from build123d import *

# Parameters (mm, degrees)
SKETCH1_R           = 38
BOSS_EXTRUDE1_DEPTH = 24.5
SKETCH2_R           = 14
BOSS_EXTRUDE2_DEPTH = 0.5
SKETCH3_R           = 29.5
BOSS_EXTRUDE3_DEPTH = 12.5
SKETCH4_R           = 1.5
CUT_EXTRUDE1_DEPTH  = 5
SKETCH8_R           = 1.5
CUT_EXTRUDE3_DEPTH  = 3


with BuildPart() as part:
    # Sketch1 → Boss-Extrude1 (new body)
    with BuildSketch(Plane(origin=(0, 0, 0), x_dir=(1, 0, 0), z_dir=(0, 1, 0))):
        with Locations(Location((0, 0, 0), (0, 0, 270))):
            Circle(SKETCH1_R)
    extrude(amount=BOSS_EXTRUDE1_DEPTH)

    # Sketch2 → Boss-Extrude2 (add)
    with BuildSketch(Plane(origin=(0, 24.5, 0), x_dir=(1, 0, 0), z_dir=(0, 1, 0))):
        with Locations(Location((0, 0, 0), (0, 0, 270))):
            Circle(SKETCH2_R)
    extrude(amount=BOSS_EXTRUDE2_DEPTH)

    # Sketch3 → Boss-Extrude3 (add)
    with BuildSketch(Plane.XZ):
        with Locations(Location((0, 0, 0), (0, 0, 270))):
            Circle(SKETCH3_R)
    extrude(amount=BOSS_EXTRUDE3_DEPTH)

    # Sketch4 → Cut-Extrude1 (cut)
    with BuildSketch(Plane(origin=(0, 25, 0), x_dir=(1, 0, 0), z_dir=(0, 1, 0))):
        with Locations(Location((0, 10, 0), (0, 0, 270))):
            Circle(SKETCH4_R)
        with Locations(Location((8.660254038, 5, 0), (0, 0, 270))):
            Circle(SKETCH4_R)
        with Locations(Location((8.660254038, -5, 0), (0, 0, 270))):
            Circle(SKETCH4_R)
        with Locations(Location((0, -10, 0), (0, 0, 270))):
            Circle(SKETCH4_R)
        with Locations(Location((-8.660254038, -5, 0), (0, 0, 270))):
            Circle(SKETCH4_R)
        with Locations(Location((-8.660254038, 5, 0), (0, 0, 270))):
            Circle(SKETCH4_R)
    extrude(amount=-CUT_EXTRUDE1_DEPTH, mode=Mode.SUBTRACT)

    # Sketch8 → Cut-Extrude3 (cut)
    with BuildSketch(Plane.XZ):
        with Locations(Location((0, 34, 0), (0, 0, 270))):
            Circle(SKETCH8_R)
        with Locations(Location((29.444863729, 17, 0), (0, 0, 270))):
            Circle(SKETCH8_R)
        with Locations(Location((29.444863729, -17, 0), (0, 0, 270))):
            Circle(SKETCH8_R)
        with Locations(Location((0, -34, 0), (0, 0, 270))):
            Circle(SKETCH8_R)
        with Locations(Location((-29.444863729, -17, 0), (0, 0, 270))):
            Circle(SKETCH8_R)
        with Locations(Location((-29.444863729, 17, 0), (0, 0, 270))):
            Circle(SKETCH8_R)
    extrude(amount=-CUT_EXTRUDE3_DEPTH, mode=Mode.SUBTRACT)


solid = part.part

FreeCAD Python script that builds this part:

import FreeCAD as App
import Part
import Sketcher

doc = App.newDocument("Part")
body = doc.addObject("PartDesign::Body", "Body")

sketch1 = doc.addObject("Sketcher::SketchObject", "Sketch")
body.addObject(sketch1)
sketch1.AttachmentSupport = (doc.XZ_Plane, [""])
sketch1.MapMode = "FlatFace"
sketch1.addGeometry(Part.Circle(App.Vector(0, 0, 0), App.Vector(0, 0, 1), 38), False)
sketch1.addConstraint([
    Sketcher.Constraint("Coincident", 0, 3, -1, 1),
    Sketcher.Constraint("Diameter", 0, 76.0),
])
pad1 = doc.addObject("PartDesign::Pad", "Pad")
body.addObject(pad1)
pad1.Profile = sketch1
pad1.Length = 24.5
pad1.Reversed = True

sketch2 = doc.addObject("Sketcher::SketchObject", "Sketch001")
body.addObject(sketch2)
sketch2.AttachmentSupport = (doc.XZ_Plane, [""])
sketch2.MapMode = "FlatFace"
sketch2.AttachmentOffset = App.Placement(App.Vector(0, 0, -24.5), App.Rotation())
sketch2.addGeometry(Part.Circle(App.Vector(0, 0, 0), App.Vector(0, 0, 1), 14), False)
sketch2.addConstraint([
    Sketcher.Constraint("Coincident", 0, 3, -1, 1),
    Sketcher.Constraint("Diameter", 0, 28.0),
])
pad2 = doc.addObject("PartDesign::Pad", "Pad001")
body.addObject(pad2)
pad2.Profile = sketch2
pad2.Length = 0.5
pad2.Reversed = True

sketch3 = doc.addObject("Sketcher::SketchObject", "Sketch002")
body.addObject(sketch3)
sketch3.AttachmentSupport = (doc.XZ_Plane, [""])
sketch3.MapMode = "FlatFace"
sketch3.addGeometry(Part.Circle(App.Vector(0, 0, 0), App.Vector(0, 0, 1), 29.5), False)
sketch3.addConstraint([
    Sketcher.Constraint("Coincident", 0, 3, -1, 1),
    Sketcher.Constraint("Diameter", 0, 59.0),
])
pad3 = doc.addObject("PartDesign::Pad", "Pad002")
body.addObject(pad3)
pad3.Profile = sketch3
pad3.Length = 12.5

sketch4 = doc.addObject("Sketcher::SketchObject", "Sketch003")
body.addObject(sketch4)
sketch4.AttachmentSupport = (doc.XZ_Plane, [""])
sketch4.MapMode = "FlatFace"
sketch4.AttachmentOffset = App.Placement(App.Vector(0, 0, -25), App.Rotation())
sketch4.addGeometry([
    Part.Circle(App.Vector(0, -10, 0), App.Vector(0, 0, 1), 1.5),
    Part.Circle(App.Vector(8.660254, -5, 0), App.Vector(0, 0, 1), 1.5),
    Part.Circle(App.Vector(8.660254, 5, 0), App.Vector(0, 0, 1), 1.5),
    Part.Circle(App.Vector(0, 10, 0), App.Vector(0, 0, 1), 1.5),
    Part.Circle(App.Vector(-8.660254, 5, 0), App.Vector(0, 0, 1), 1.5),
    Part.Circle(App.Vector(-8.660254, -5, 0), App.Vector(0, 0, 1), 1.5),
], False)
sketch4.addConstraint([
    Sketcher.Constraint("Equal", 0, 1),
    Sketcher.Constraint("Equal", 1, 2),
    Sketcher.Constraint("Equal", 2, 3),
    Sketcher.Constraint("Equal", 3, 4),
    Sketcher.Constraint("Equal", 4, 5),
    Sketcher.Constraint("Symmetric", 0, 3, 3, 3, -1, 1),
    Sketcher.Constraint("Symmetric", 1, 3, 4, 3, -1, 1),
    Sketcher.Constraint("Symmetric", 2, 3, 5, 3, -1, 1),
    Sketcher.Constraint("Symmetric", 2, 3, 4, 3, -2),
    Sketcher.Constraint("PointOnObject", 0, 3, -2),
    Sketcher.Constraint("Diameter", 0, 3.0),
    Sketcher.Constraint("DistanceY", 0, 3, -1, 1, 10.0),
    Sketcher.Constraint("DistanceY", 1, 3, -1, 1, 5.0),
    Sketcher.Constraint("DistanceX", 4, 3, 2, 3, 17.320508),
])
pocket1 = doc.addObject("PartDesign::Pocket", "Pocket")
body.addObject(pocket1)
pocket1.Profile = sketch4
pocket1.Length = 5
pocket1.Reversed = True

sketch5 = doc.addObject("Sketcher::SketchObject", "Sketch004")
body.addObject(sketch5)
sketch5.AttachmentSupport = (doc.XZ_Plane, [""])
sketch5.MapMode = "FlatFace"
sketch5.addGeometry([
    Part.Circle(App.Vector(0, 34, 0), App.Vector(0, 0, 1), 1.5),
    Part.Circle(App.Vector(29.444864, 17, 0), App.Vector(0, 0, 1), 1.5),
    Part.Circle(App.Vector(29.444864, -17, 0), App.Vector(0, 0, 1), 1.5),
    Part.Circle(App.Vector(0, -34, 0), App.Vector(0, 0, 1), 1.5),
    Part.Circle(App.Vector(-29.444864, -17, 0), App.Vector(0, 0, 1), 1.5),
    Part.Circle(App.Vector(-29.444864, 17, 0), App.Vector(0, 0, 1), 1.5),
], False)
sketch5.addConstraint([
    Sketcher.Constraint("Equal", 0, 1),
    Sketcher.Constraint("Equal", 1, 2),
    Sketcher.Constraint("Equal", 2, 3),
    Sketcher.Constraint("Equal", 3, 4),
    Sketcher.Constraint("Equal", 4, 5),
    Sketcher.Constraint("Symmetric", 0, 3, 3, 3, -1, 1),
    Sketcher.Constraint("Symmetric", 1, 3, 4, 3, -1, 1),
    Sketcher.Constraint("Symmetric", 2, 3, 5, 3, -1, 1),
    Sketcher.Constraint("Symmetric", 2, 3, 4, 3, -2),
    Sketcher.Constraint("PointOnObject", 0, 3, -2),
    Sketcher.Constraint("Diameter", 0, 3.0),
    Sketcher.Constraint("DistanceY", -1, 1, 0, 3, 34.0),
    Sketcher.Constraint("DistanceY", -1, 1, 1, 3, 17.0),
    Sketcher.Constraint("DistanceX", -1, 1, 1, 3, 29.444864),
])
pocket2 = doc.addObject("PartDesign::Pocket", "Pocket001")
body.addObject(pocket2)
pocket2.Profile = sketch5
pocket2.Length = 3

doc.recompute()
